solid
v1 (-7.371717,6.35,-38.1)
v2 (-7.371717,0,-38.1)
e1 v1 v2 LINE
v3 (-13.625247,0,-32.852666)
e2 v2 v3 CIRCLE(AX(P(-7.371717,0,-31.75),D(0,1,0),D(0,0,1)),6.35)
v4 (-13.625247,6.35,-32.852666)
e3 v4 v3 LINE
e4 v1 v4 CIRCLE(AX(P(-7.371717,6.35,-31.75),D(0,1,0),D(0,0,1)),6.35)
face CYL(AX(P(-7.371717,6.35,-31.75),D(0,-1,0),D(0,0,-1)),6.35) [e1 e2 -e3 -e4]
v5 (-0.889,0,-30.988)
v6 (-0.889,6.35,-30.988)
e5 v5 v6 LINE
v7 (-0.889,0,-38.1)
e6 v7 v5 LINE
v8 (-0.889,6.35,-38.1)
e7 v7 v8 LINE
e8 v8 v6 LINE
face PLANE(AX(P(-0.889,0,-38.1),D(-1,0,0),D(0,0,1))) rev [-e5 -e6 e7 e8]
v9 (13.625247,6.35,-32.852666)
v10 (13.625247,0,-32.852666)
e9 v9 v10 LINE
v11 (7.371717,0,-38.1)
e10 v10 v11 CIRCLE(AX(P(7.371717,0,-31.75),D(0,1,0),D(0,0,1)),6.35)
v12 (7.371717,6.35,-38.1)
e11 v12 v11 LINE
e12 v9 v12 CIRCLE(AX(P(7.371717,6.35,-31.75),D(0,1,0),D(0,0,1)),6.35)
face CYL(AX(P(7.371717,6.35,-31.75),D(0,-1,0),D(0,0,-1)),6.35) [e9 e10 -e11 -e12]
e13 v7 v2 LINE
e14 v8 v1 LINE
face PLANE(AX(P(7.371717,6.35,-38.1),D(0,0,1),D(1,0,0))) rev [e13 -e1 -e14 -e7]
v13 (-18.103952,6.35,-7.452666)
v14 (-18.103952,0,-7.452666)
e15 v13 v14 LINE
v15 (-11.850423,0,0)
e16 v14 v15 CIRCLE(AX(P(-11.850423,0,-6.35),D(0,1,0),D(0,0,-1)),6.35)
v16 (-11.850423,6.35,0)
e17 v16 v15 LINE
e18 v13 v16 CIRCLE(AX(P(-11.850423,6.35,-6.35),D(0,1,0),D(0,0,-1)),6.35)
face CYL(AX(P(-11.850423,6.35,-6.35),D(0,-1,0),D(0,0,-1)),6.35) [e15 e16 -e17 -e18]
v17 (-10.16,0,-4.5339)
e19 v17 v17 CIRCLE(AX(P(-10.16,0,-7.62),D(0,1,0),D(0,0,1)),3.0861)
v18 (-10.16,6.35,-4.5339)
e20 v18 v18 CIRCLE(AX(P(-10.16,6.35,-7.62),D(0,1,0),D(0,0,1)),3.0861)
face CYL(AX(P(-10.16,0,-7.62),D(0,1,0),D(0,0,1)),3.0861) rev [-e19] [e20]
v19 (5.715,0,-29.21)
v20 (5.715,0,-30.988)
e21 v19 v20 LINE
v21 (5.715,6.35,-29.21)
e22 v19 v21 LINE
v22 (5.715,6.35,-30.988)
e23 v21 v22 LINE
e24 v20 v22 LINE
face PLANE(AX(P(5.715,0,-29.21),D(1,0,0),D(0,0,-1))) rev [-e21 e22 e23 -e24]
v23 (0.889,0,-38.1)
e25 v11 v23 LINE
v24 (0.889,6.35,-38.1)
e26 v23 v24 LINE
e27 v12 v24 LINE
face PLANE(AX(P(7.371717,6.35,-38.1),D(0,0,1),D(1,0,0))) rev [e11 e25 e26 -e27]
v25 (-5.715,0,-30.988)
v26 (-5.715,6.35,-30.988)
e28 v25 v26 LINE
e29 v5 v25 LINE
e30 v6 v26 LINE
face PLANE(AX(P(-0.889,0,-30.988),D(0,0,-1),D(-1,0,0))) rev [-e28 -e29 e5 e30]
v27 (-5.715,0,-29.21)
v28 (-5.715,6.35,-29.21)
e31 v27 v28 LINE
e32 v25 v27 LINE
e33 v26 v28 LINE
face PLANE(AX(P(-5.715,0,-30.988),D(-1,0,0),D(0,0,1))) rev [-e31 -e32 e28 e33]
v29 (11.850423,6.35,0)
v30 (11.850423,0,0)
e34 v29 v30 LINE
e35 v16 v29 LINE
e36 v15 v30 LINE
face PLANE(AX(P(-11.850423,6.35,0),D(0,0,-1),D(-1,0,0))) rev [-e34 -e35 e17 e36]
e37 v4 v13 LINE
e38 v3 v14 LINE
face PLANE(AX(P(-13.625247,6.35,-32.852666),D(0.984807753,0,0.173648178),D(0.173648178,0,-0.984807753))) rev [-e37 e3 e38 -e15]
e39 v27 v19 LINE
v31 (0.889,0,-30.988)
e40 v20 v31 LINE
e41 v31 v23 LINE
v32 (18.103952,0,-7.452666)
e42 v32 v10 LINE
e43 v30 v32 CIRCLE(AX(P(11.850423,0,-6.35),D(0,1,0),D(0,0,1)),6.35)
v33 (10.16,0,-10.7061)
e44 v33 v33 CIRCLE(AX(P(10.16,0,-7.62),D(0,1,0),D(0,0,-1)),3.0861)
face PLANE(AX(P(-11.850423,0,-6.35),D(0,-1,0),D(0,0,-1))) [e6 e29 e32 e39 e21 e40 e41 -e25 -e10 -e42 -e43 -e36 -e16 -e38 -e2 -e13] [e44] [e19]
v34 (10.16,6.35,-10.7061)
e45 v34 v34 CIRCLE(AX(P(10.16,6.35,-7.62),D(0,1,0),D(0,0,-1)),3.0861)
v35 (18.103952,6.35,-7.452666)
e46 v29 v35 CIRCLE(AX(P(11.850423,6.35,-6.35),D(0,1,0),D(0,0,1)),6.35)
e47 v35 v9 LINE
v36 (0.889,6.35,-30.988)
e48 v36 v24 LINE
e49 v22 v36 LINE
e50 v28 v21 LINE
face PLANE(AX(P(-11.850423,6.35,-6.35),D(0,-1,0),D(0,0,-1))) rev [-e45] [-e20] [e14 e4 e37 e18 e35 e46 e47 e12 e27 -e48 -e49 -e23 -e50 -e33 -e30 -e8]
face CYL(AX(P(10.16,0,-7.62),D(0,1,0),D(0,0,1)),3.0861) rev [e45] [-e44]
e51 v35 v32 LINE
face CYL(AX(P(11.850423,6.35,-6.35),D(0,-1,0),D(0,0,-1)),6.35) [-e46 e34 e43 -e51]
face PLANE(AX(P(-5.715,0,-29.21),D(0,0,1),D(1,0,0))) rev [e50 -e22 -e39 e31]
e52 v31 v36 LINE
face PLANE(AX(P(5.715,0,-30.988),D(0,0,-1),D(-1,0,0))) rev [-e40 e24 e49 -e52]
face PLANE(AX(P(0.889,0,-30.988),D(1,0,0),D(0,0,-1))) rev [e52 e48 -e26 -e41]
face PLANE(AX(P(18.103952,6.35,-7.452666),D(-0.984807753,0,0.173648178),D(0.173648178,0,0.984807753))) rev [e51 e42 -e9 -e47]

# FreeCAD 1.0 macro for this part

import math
import FreeCAD as App
import Part
import Sketcher

V = App.Vector
Q = App.Units.Quantity

doc = App.newDocument("Part")
body = doc.addObject("PartDesign::Body", "Body")

# Sketch on XZ plane
sketch1 = body.newObject("Sketcher::SketchObject", "Sketch")
sketch1.AttachmentSupport = (doc.getObject("XZ_Plane"), [""])
sketch1.MapMode = "FlatFace"
sketch1.addGeometry(Part.LineSegment(V(-11.850423, 0, 0), V(11.850423, 0, 0)), False)
sketch1.addGeometry(Part.ArcOfCircle(Part.Circle(V(11.850423, -6.35, 0), V(0, 0, 1), 6.35), math.radians(-10), math.radians(90)), False)
sketch1.addGeometry(Part.LineSegment(V(18.103952, -7.452666, 0), V(13.625247, -32.852666, 0)), False)
sketch1.addGeometry(Part.ArcOfCircle(Part.Circle(V(7.371717, -31.75, 0), V(0, 0, 1), 6.35), math.radians(-90), math.radians(-10)), False)
sketch1.addGeometry(Part.LineSegment(V(7.371717, -38.1, 0), V(-7.371717, -38.1, 0)), False)
sketch1.addGeometry(Part.ArcOfCircle(Part.Circle(V(-7.371717, -31.75, 0), V(0, 0, 1), 6.35), math.radians(-170), math.radians(-90)), False)
sketch1.addGeometry(Part.LineSegment(V(-13.625247, -32.852666, 0), V(-18.103952, -7.452666, 0)), False)
sketch1.addGeometry(Part.ArcOfCircle(Part.Circle(V(-11.850423, -6.35, 0), V(0, 0, 1), 6.35), math.radians(90), math.radians(190)), False)
sketch1.addConstraint(Sketcher.Constraint("Tangent", 0, 2, 1, 2))
sketch1.addConstraint(Sketcher.Constraint("Tangent", 1, 1, 2, 1))
sketch1.addConstraint(Sketcher.Constraint("Tangent", 2, 2, 3, 2))
sketch1.addConstraint(Sketcher.Constraint("Tangent", 3, 1, 4, 1))
sketch1.addConstraint(Sketcher.Constraint("Tangent", 4, 2, 5, 2))
sketch1.addConstraint(Sketcher.Constraint("Tangent", 5, 1, 6, 1))
sketch1.addConstraint(Sketcher.Constraint("Tangent", 6, 2, 7, 2))
sketch1.addConstraint(Sketcher.Constraint("Tangent", 7, 1, 0, 1))
sketch1.addConstraint(Sketcher.Constraint("Horizontal", 0))
sketch1.addConstraint(Sketcher.Constraint("Horizontal", 4))
sketch1.addConstraint(Sketcher.Constraint("Equal", 1, 3))
sketch1.addConstraint(Sketcher.Constraint("Equal", 3, 5))
sketch1.addConstraint(Sketcher.Constraint("Equal", 5, 7))
sketch1.addConstraint(Sketcher.Constraint("Symmetric", 0, 2, 7, 1, -1, 1))
sketch1.addConstraint(Sketcher.Constraint("Horizontal", 2, 2, 5, 1))
sketch1.addConstraint(Sketcher.Constraint("Radius", 1, Q("0.25 in")))
sketch1.addConstraint(Sketcher.Constraint("Angle", 2, Q("-100 deg")))
sketch1.addConstraint(Sketcher.Constraint("DistanceY", 3, 3, 1, 3, Q("1 in")))
sketch1.addConstraint(Sketcher.Constraint("DistanceX", 0, 1, 0, 2, 23.700845))
pad1 = body.newObject("PartDesign::Pad", "Pad")
pad1.Profile = sketch1
pad1.Length = Q("0.25 in")
pad1.Reversed = True

# Sketch on XZ plane
sketch2 = body.newObject("Sketcher::SketchObject", "Sketch001")
sketch2.AttachmentSupport = (doc.getObject("XZ_Plane"), [""])
sketch2.MapMode = "FlatFace"
sketch2.AttachmentOffset = App.Placement(V(0, 0, -0.25 * 25.4), App.Rotation())
sketch2.addGeometry(Part.Circle(V(-10.16, -7.62, 0), V(0, 0, 1), 3.0861), False)
sketch2.addGeometry(Part.Circle(V(10.16, -7.62, 0), V(0, 0, 1), 3.0861), False)
sketch2.addConstraint(Sketcher.Constraint("Equal", 0, 1))
sketch2.addConstraint(Sketcher.Constraint("Symmetric", 0, 3, 1, 3, -2))
sketch2.addConstraint(Sketcher.Constraint("Diameter", 0, Q("0.243 in")))
sketch2.addConstraint(Sketcher.Constraint("DistanceX", 0, 3, -1, 1, Q("0.4 in")))
sketch2.addConstraint(Sketcher.Constraint("DistanceY", 0, 3, -1, 1, Q("0.3 in")))
pocket1 = body.newObject("PartDesign::Pocket", "Pocket")
pocket1.Profile = sketch2
pocket1.Type = "ThroughAll"
pocket1.Reversed = True

# Sketch on XZ plane
sketch3 = body.newObject("Sketcher::SketchObject", "Sketch002")
sketch3.AttachmentSupport = (doc.getObject("XZ_Plane"), [""])
sketch3.MapMode = "FlatFace"
sketch3.AttachmentOffset = App.Placement(V(0, 0, -0.25 * 25.4), App.Rotation())
sketch3.addGeometry(Part.LineSegment(V(-0.889, -38.1, 0), V(-0.889, -30.988, 0)), False)
sketch3.addGeometry(Part.LineSegment(V(-0.889, -30.988, 0), V(-5.715, -30.988, 0)), False)
sketch3.addGeometry(Part.LineSegment(V(-5.715, -30.988, 0), V(-5.715, -29.21, 0)), False)
sketch3.addGeometry(Part.LineSegment(V(-5.715, -29.21, 0), V(5.715, -29.21, 0)), False)
sketch3.addGeometry(Part.LineSegment(V(5.715, -29.21, 0), V(5.715, -30.988, 0)), False)
sketch3.addGeometry(Part.LineSegment(V(5.715, -30.988, 0), V(0.889, -30.988, 0)), False)
sketch3.addGeometry(Part.LineSegment(V(0.889, -30.988, 0), V(0.889, -38.1, 0)), False)
sketch3.addGeometry(Part.LineSegment(V(0.889, -38.1, 0), V(-0.889, -38.1, 0)), False)
sketch3.addConstraint(Sketcher.Constraint("Coincident", 0, 2, 1, 1))
sketch3.addConstraint(Sketcher.Constraint("Coincident", 1, 2, 2, 1))
sketch3.addConstraint(Sketcher.Constraint("Coincident", 2, 2, 3, 1))
sketch3.addConstraint(Sketcher.Constraint("Coincident", 3, 2, 4, 1))
sketch3.addConstraint(Sketcher.Constraint("Coincident", 4, 2, 5, 1))
sketch3.addConstraint(Sketcher.Constraint("Coincident", 5, 2, 6, 1))
sketch3.addConstraint(Sketcher.Constraint("Coincident", 6, 2, 7, 1))
sketch3.addConstraint(Sketcher.Constraint("Coincident", 7, 2, 0, 1))
sketch3.addConstraint(Sketcher.Constraint("Vertical", 0))
sketch3.addConstraint(Sketcher.Constraint("Horizontal", 1))
sketch3.addConstraint(Sketcher.Constraint("Vertical", 2))
sketch3.addConstraint(Sketcher.Constraint("Horizontal", 3))
sketch3.addConstraint(Sketcher.Constraint("Vertical", 4))
sketch3.addConstraint(Sketcher.Constraint("Horizontal", 5))
sketch3.addConstraint(Sketcher.Constraint("Vertical", 6))
sketch3.addConstraint(Sketcher.Constraint("Horizontal", 7))
sketch3.addConstraint(Sketcher.Constraint("Symmetric", 1, 2, 4, 2, -2))
sketch3.addConstraint(Sketcher.Constraint("Equal", 1, 5))
sketch3.addConstraint(Sketcher.Constraint("Equal", 7, 2))
sketch3.addConstraint(Sketcher.Constraint("DistanceX", 1, 2, 1, 1, Q("0.19 in")))
sketch3.addConstraint(Sketcher.Constraint("DistanceX", 3, 1, 3, 2, Q("0.45 in")))
sketch3.addConstraint(Sketcher.Constraint("DistanceY", 0, 1, 0, 2, Q("0.28 in")))
sketch3.addConstraint(Sketcher.Constraint("DistanceY", 6, 2, -1, 1, Q("1.5 in")))
pocket2 = body.newObject("PartDesign::Pocket", "Pocket001")
pocket2.Profile = sketch3
pocket2.Type = "ThroughAll"
pocket2.Reversed = True

doc.recompute()
